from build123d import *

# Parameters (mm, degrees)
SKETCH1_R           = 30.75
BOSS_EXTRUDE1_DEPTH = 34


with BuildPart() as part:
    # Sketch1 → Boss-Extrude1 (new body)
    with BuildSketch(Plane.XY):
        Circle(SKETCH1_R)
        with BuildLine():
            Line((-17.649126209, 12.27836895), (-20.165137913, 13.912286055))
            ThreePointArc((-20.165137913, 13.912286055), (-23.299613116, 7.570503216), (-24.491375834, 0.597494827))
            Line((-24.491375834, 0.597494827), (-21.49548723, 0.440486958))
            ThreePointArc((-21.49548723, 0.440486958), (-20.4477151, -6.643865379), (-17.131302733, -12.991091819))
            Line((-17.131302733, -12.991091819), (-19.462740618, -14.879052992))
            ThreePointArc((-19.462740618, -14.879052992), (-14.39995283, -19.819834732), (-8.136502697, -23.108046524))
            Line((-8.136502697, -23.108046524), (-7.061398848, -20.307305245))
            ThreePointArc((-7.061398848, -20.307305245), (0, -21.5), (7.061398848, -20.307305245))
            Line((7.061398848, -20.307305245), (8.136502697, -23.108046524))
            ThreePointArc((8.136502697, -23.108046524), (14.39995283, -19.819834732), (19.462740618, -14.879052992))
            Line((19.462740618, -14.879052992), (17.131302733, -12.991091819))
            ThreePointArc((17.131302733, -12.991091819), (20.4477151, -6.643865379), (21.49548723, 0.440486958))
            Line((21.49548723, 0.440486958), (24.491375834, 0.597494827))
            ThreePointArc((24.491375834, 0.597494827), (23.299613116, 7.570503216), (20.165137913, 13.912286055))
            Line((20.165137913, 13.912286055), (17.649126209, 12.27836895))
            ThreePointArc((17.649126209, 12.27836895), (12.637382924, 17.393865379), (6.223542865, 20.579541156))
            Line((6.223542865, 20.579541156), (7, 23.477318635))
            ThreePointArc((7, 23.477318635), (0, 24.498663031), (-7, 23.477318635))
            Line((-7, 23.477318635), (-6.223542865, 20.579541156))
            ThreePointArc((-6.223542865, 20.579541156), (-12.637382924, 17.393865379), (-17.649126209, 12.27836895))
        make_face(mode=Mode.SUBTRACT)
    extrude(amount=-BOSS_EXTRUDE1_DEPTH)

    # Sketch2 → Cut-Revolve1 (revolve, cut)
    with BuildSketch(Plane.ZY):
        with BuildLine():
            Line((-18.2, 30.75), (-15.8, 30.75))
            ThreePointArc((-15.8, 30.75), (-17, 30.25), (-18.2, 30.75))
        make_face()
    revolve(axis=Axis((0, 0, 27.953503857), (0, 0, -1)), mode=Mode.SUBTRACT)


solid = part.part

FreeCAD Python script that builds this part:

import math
import FreeCAD as App
import Part
import Sketcher
Q = App.Units.Quantity

doc = App.newDocument("Part")
body = doc.addObject("PartDesign::Body", "Body")

# Sketch on XY plane
sketch1 = doc.addObject("Sketcher::SketchObject", "Sketch")
body.addObject(sketch1)
sketch1.AttachmentSupport = (doc.XY_Plane, [""])
sketch1.MapMode = "FlatFace"
sketch1.addGeometry([
    Part.Circle(App.Vector(0, 0, 0), App.Vector(0, 0, 1), 30.75),  # 0
    Part.LineSegment(App.Vector(-20.165138, 13.912286, 0), App.Vector(-17.649126, 12.278369, 0)),  # 1
    Part.ArcOfCircle(Part.Circle(App.Vector(0, 0, 0), App.Vector(0, 0, 1), 21.5), math.radians(106.826055), math.radians(145.173945)),  # 2
    Part.LineSegment(App.Vector(-6.223543, 20.579541, 0), App.Vector(-7, 23.477319, 0)),  # 3
    Part.ArcOfCircle(Part.Circle(App.Vector(0, 0, 0), App.Vector(0, 0, 1), 24.498663), math.radians(73.397518), math.radians(106.602482)),  # 4
    Part.LineSegment(App.Vector(7, 23.477319, 0), App.Vector(6.223543, 20.579541, 0)),  # 5
    Part.ArcOfCircle(Part.Circle(App.Vector(0, 0, 0), App.Vector(0, 0, 1), 21.5), math.radians(34.826055), math.radians(73.173945)),  # 6
    Part.LineSegment(App.Vector(17.649126, 12.278369, 0), App.Vector(20.165138, 13.912286, 0)),  # 7
    Part.ArcOfCircle(Part.Circle(App.Vector(0, 0, 0), App.Vector(0, 0, 1), 24.498663), math.radians(1.397518), math.radians(34.602482)),  # 8
    Part.LineSegment(App.Vector(24.491376, 0.597495, 0), App.Vector(21.495487, 0.440487, 0)),  # 9
    Part.ArcOfCircle(Part.Circle(App.Vector(0, 0, 0), App.Vector(0, 0, 1), 21.5), math.radians(-37.173945), math.radians(1.173945)),  # 10
    Part.LineSegment(App.Vector(17.131303, -12.991092, 0), App.Vector(19.462741, -14.879053, 0)),  # 11
    Part.ArcOfCircle(Part.Circle(App.Vector(0, 0, 0), App.Vector(0, 0, 1), 24.498663), math.radians(-70.602482), math.radians(-37.397518)),  # 12
    Part.LineSegment(App.Vector(8.136503, -23.108047, 0), App.Vector(7.061399, -20.307305, 0)),  # 13
    Part.ArcOfCircle(Part.Circle(App.Vector(0, 0, 0), App.Vector(0, 0, 1), 21.5), math.radians(-109.173945), math.radians(-70.826055)),  # 14
    Part.LineSegment(App.Vector(-7.061399, -20.307305, 0), App.Vector(-8.136503, -23.108047, 0)),  # 15
    Part.ArcOfCircle(Part.Circle(App.Vector(0, 0, 0), App.Vector(0, 0, 1), 24.498663), math.radians(-142.602482), math.radians(-109.397518)),  # 16
    Part.LineSegment(App.Vector(-19.462741, -14.879053, 0), App.Vector(-17.131303, -12.991092, 0)),  # 17
    Part.ArcOfCircle(Part.Circle(App.Vector(0, 0, 0), App.Vector(0, 0, 1), 21.5), math.radians(178.826055), math.radians(217.173945)),  # 18
    Part.LineSegment(App.Vector(-21.495487, 0.440487, 0), App.Vector(-24.491376, 0.597495, 0)),  # 19
    Part.ArcOfCircle(Part.Circle(App.Vector(0, 0, 0), App.Vector(0, 0, 1), 24.498663), math.radians(145.397518), math.radians(178.602482)),  # 20
], False)
sketch1.addConstraint([
    Sketcher.Constraint("Coincident", 1, 2, 2, 2),
    Sketcher.Constraint("Coincident", 2, 1, 3, 1),
    Sketcher.Constraint("Coincident", 3, 2, 4, 2),
    Sketcher.Constraint("Coincident", 4, 1, 5, 1),
    Sketcher.Constraint("Coincident", 5, 2, 6, 2),
    Sketcher.Constraint("Coincident", 6, 1, 7, 1),
    Sketcher.Constraint("Coincident", 7, 2, 8, 2),
    Sketcher.Constraint("Coincident", 8, 1, 9, 1),
    Sketcher.Constraint("Coincident", 9, 2, 10, 2),
    Sketcher.Constraint("Coincident", 10, 1, 11, 1),
    Sketcher.Constraint("Coincident", 11, 2, 12, 2),
    Sketcher.Constraint("Coincident", 12, 1, 13, 1),
    Sketcher.Constraint("Coincident", 13, 2, 14, 2),
    Sketcher.Constraint("Coincident", 14, 1, 15, 1),
    Sketcher.Constraint("Coincident", 15, 2, 16, 2),
    Sketcher.Constraint("Coincident", 16, 1, 17, 1),
    Sketcher.Constraint("Coincident", 17, 2, 18, 2),
    Sketcher.Constraint("Coincident", 18, 1, 19, 1),
    Sketcher.Constraint("Coincident", 19, 2, 20, 2),
    Sketcher.Constraint("Coincident", 20, 1, 1, 1),
    Sketcher.Constraint("Coincident", 0, 3, -1, 1),
    Sketcher.Constraint("Coincident", 2, 3, -1, 1),
    Sketcher.Constraint("Coincident", 4, 3, -1, 1),
    Sketcher.Constraint("Coincident", 6, 3, -1, 1),
    Sketcher.Constraint("Coincident", 8, 3, -1, 1),
    Sketcher.Constraint("Coincident", 10, 3, -1, 1),
    Sketcher.Constraint("Coincident", 12, 3, -1, 1),
    Sketcher.Constraint("Coincident", 14, 3, -1, 1),
    Sketcher.Constraint("Coincident", 16, 3, -1, 1),
    Sketcher.Constraint("Coincident", 18, 3, -1, 1),
    Sketcher.Constraint("Coincident", 20, 3, -1, 1),
    Sketcher.Constraint("Equal", 2, 6),
    Sketcher.Constraint("Equal", 4, 8),
    Sketcher.Constraint("Equal", 6, 10),
    Sketcher.Constraint("Equal", 8, 12),
    Sketcher.Constraint("Equal", 10, 14),
    Sketcher.Constraint("Equal", 12, 16),
    Sketcher.Constraint("Equal", 14, 18),
    Sketcher.Constraint("Equal", 16, 20),
    Sketcher.Constraint("Horizontal", 3, 2, 4, 1),
    Sketcher.Constraint("Horizontal", 2, 1, 5, 2),
    Sketcher.Constraint("Horizontal", 1, 2, 6, 1),
    Sketcher.Constraint("Horizontal", 13, 2, 14, 1),
    Sketcher.Constraint("Horizontal", 12, 1, 15, 2),
    Sketcher.Constraint("Horizontal", 11, 2, 16, 1),
    Sketcher.Constraint("Horizontal", 10, 1, 17, 2),
    Sketcher.Constraint("Horizontal", 9, 2, 18, 1),
    Sketcher.Constraint("Horizontal", 8, 1, 19, 2),
    Sketcher.Constraint("Horizontal", 7, 2, 20, 1),
    Sketcher.Constraint("Equal", 1, 3),
    Sketcher.Constraint("Equal", 7, 9),
    Sketcher.Constraint("Equal", 9, 11),
    Sketcher.Constraint("Equal", 11, 13),
    Sketcher.Constraint("Diameter", 0, Q("61.5 mm")),
    Sketcher.Constraint("Radius", 2, Q("21.5 mm")),
    Sketcher.Constraint("Angle", 1, Q("-33 deg")),
    Sketcher.Constraint("Angle", 3, Q("105 deg")),
    Sketcher.Constraint("Angle", 9, Q("-177 deg")),
    Sketcher.Constraint("Angle", 11, Q("-39 deg")),
    Sketcher.Constraint("Angle", 13, Q("111 deg")),
    Sketcher.Constraint("Distance", 1, Q("3 mm")),
    Sketcher.Constraint("DistanceX", 3, 2, -1, 1, Q("7 mm")),
])
pad1 = doc.addObject("PartDesign::Pad", "Pad")
body.addObject(pad1)
pad1.Profile = sketch1
pad1.Length = 34
pad1.Reversed = True

# Sketch on YZ plane
sketch2 = doc.addObject("Sketcher::SketchObject", "Sketch001")
body.addObject(sketch2)
sketch2.AttachmentSupport = (doc.YZ_Plane, [""])
sketch2.MapMode = "FlatFace"
sketch2.addGeometry([
    Part.LineSegment(App.Vector(30.8, -15.8, 0), App.Vector(30.8, -18.2, 0)),
    Part.ArcOfCircle(Part.Circle(App.Vector(31.9, -17, 0), App.Vector(0, 0, 1), 1.7), math.radians(135), math.radians(225)),
], False)
sketch2.addConstraint([
    Sketcher.Constraint("Coincident", 0, 1, 1, 1),
    Sketcher.Constraint("Coincident", 1, 2, 0, 2),
    Sketcher.Constraint("Vertical", 0),
    Sketcher.Constraint("Radius", 1, Q("1.69 mm")),
    Sketcher.Constraint("DistanceY", 0, 2, 0, 1, Q("2.4 mm")),
    Sketcher.Constraint("DistanceY", 1, 3, -1, 1, Q("17 mm")),
    Sketcher.Constraint("DistanceX", -1, 1, 1, 3, Q("31.94 mm")),
])
groove = doc.addObject("PartDesign::Groove", "Groove")
body.addObject(groove)
groove.Profile = sketch2
groove.ReferenceAxis = (sketch2, ["V_Axis"])
groove.Angle = 360

doc.recompute()
